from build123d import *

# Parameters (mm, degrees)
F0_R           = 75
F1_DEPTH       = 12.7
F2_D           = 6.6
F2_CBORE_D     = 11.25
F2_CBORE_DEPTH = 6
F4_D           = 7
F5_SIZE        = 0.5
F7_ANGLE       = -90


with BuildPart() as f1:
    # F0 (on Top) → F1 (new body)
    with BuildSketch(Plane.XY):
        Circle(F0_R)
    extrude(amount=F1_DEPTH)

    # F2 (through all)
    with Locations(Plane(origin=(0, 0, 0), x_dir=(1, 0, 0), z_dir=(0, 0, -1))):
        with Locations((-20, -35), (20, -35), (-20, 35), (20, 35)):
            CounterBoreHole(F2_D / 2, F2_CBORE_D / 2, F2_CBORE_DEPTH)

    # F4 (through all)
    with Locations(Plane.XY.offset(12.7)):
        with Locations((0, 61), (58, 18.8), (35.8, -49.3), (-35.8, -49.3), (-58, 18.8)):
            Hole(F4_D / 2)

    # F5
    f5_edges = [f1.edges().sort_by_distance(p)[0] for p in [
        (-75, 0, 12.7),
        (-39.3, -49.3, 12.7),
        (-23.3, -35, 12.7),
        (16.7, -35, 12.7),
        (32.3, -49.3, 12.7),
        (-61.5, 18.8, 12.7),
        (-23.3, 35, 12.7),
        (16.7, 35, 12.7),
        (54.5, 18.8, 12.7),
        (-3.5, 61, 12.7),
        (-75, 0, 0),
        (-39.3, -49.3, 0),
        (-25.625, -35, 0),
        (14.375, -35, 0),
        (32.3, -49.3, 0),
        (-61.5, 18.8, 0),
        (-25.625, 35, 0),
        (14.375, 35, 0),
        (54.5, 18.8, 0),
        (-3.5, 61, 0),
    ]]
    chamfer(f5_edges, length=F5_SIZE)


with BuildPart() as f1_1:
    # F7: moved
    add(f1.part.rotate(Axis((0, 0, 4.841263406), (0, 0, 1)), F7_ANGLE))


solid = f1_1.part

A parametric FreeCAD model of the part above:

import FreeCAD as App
import Part
import Sketcher
from FreeCAD import Vector


def edges_at(feature, points):
    """Names of the edges that pass closest to the given points."""
    edges = feature.Shape.Edges
    near = lambda p: min(range(len(edges)), key=lambda i: edges[i].distToShape(Part.Vertex(*p))[0])
    return sorted({f"Edge{near(p) + 1}" for p in points})

doc = App.newDocument("Part")
body = doc.addObject("PartDesign::Body", "Body")

# Sketch on XY plane
sketch1 = doc.addObject("Sketcher::SketchObject", "Sketch")
body.addObject(sketch1)
sketch1.AttachmentSupport = (doc.XY_Plane, [""])
sketch1.MapMode = "FlatFace"
sketch1.addGeometry(Part.Circle(Vector(0, 0, 0), Vector(0, 0, 1), 75), False)
sketch1.addConstraint(Sketcher.Constraint("Coincident", 0, 3, -1, 1))
sketch1.addConstraint(Sketcher.Constraint("Diameter", 0, 150.0))
pad1 = doc.addObject("PartDesign::Pad", "Pad")
body.addObject(pad1)
pad1.Profile = sketch1
pad1.Length = 12.7

# Sketch on XY plane
sketch2 = doc.addObject("Sketcher::SketchObject", "Sketch001")
body.addObject(sketch2)
sketch2.AttachmentSupport = (doc.XY_Plane, [""])
sketch2.MapMode = "FlatFace"
sketch2.addGeometry(Part.Circle(Vector(-20, 35, 0), Vector(0, 0, 1), 3.3), False)
sketch2.addGeometry(Part.Circle(Vector(20, 35, 0), Vector(0, 0, 1), 3.3), False)
sketch2.addGeometry(Part.Circle(Vector(-20, -35, 0), Vector(0, 0, 1), 3.3), False)
sketch2.addGeometry(Part.Circle(Vector(20, -35, 0), Vector(0, 0, 1), 3.3), False)
sketch2.addConstraint(Sketcher.Constraint("Equal", 0, 1))
sketch2.addConstraint(Sketcher.Constraint("Equal", 1, 2))
sketch2.addConstraint(Sketcher.Constraint("Equal", 2, 3))
sketch2.addConstraint(Sketcher.Constraint("Symmetric", 1, 3, 2, 3, -1, 1))
sketch2.addConstraint(Sketcher.Constraint("Symmetric", 0, 3, 3, 3, -1, 1))
sketch2.addConstraint(Sketcher.Constraint("Symmetric", 0, 3, 1, 3, -2))
sketch2.addConstraint(Sketcher.Constraint("Diameter", 0, 6.6))
sketch2.addConstraint(Sketcher.Constraint("DistanceX", 0, 3, -1, 1, 20.0))
sketch2.addConstraint(Sketcher.Constraint("DistanceY", -1, 1, 0, 3, 35.0))
doc.recompute()
hole = doc.addObject("PartDesign::Hole", "Hole")
body.addObject(hole)
hole.Profile = sketch2
hole.ThreadType = "None"
hole.Diameter = 6.6
hole.DepthType = "ThroughAll"
hole.HoleCutType = "Counterbore"
hole.HoleCutDiameter = 11.25
hole.HoleCutDepth = 6
hole.Reversed = True

# Sketch on XY plane
sketch3 = doc.addObject("Sketcher::SketchObject", "Sketch002")
body.addObject(sketch3)
sketch3.AttachmentSupport = (doc.XY_Plane, [""])
sketch3.MapMode = "FlatFace"
sketch3.AttachmentOffset = App.Placement(Vector(0, 0, 12.7), App.Rotation())
sketch3.addGeometry(Part.Circle(Vector(0, 61, 0), Vector(0, 0, 1), 3.5), False)
sketch3.addGeometry(Part.Circle(Vector(58, 18.8, 0), Vector(0, 0, 1), 3.5), False)
sketch3.addGeometry(Part.Circle(Vector(35.8, -49.3, 0), Vector(0, 0, 1), 3.5), False)
sketch3.addGeometry(Part.Circle(Vector(-35.8, -49.3, 0), Vector(0, 0, 1), 3.5), False)
sketch3.addGeometry(Part.Circle(Vector(-58, 18.8, 0), Vector(0, 0, 1), 3.5), False)
sketch3.addConstraint(Sketcher.Constraint("Equal", 0, 1))
sketch3.addConstraint(Sketcher.Constraint("Equal", 1, 2))
sketch3.addConstraint(Sketcher.Constraint("Equal", 2, 3))
sketch3.addConstraint(Sketcher.Constraint("Equal", 3, 4))
sketch3.addConstraint(Sketcher.Constraint("Symmetric", 2, 3, 3, 3, -2))
sketch3.addConstraint(Sketcher.Constraint("Symmetric", 1, 3, 4, 3, -2))
sketch3.addConstraint(Sketcher.Constraint("PointOnObject", 0, 3, -2))
sketch3.addConstraint(Sketcher.Constraint("Diameter", 0, 7.0))
sketch3.addConstraint(Sketcher.Constraint("DistanceY", -1, 1, 0, 3, 61.0))
sketch3.addConstraint(Sketcher.Constraint("DistanceX", -1, 1, 1, 3, 58.0))
sketch3.addConstraint(Sketcher.Constraint("DistanceY", -1, 1, 1, 3, 18.8))
sketch3.addConstraint(Sketcher.Constraint("DistanceX", -1, 1, 2, 3, 35.8))
sketch3.addConstraint(Sketcher.Constraint("DistanceY", 2, 3, -1, 1, 49.3))
doc.recompute()
hole2 = doc.addObject("PartDesign::Hole", "Hole001")
body.addObject(hole2)
hole2.Profile = sketch3
hole2.ThreadType = "None"
hole2.Diameter = 7
hole2.DepthType = "ThroughAll"
doc.recompute()

chamfer = doc.addObject("PartDesign::Chamfer", "Chamfer")
body.addObject(chamfer)
chamfer.Base = (hole2, edges_at(hole2, [
    (-75, 0, 12.7),
    (-32.3, -49.3, 12.7),
    (-16.7, -35, 12.7),
    (23.3, -35, 12.7),
    (39.3, -49.3, 12.7),
    (-54.5, 18.8, 12.7),
    (-16.7, 35, 12.7),
    (23.3, 35, 12.7),
    (61.5, 18.8, 12.7),
    (3.5, 61, 12.7),
    (-75, 0, 0),
    (-32.3, -49.3, 0),
    (-25.625, -35, 0),
    (14.375, -35, 0),
    (39.3, -49.3, 0),
    (-54.5, 18.8, 0),
    (-25.625, 35, 0),
    (14.375, 35, 0),
    (61.5, 18.8, 0),
    (3.5, 61, 0),
]))
chamfer.Size = 0.5
body2 = doc.addObject("PartDesign::Body", "Body001")
doc.recompute()

body.Placement = App.Placement(Vector(0, 0, 0), App.Rotation(Vector(0, 0, 1), 270))
boolean = doc.addObject("PartDesign::Boolean", "Boolean")
body2.addObject(boolean)
boolean.Type = "Fuse"
boolean.addObjects([body])

doc.recompute()
